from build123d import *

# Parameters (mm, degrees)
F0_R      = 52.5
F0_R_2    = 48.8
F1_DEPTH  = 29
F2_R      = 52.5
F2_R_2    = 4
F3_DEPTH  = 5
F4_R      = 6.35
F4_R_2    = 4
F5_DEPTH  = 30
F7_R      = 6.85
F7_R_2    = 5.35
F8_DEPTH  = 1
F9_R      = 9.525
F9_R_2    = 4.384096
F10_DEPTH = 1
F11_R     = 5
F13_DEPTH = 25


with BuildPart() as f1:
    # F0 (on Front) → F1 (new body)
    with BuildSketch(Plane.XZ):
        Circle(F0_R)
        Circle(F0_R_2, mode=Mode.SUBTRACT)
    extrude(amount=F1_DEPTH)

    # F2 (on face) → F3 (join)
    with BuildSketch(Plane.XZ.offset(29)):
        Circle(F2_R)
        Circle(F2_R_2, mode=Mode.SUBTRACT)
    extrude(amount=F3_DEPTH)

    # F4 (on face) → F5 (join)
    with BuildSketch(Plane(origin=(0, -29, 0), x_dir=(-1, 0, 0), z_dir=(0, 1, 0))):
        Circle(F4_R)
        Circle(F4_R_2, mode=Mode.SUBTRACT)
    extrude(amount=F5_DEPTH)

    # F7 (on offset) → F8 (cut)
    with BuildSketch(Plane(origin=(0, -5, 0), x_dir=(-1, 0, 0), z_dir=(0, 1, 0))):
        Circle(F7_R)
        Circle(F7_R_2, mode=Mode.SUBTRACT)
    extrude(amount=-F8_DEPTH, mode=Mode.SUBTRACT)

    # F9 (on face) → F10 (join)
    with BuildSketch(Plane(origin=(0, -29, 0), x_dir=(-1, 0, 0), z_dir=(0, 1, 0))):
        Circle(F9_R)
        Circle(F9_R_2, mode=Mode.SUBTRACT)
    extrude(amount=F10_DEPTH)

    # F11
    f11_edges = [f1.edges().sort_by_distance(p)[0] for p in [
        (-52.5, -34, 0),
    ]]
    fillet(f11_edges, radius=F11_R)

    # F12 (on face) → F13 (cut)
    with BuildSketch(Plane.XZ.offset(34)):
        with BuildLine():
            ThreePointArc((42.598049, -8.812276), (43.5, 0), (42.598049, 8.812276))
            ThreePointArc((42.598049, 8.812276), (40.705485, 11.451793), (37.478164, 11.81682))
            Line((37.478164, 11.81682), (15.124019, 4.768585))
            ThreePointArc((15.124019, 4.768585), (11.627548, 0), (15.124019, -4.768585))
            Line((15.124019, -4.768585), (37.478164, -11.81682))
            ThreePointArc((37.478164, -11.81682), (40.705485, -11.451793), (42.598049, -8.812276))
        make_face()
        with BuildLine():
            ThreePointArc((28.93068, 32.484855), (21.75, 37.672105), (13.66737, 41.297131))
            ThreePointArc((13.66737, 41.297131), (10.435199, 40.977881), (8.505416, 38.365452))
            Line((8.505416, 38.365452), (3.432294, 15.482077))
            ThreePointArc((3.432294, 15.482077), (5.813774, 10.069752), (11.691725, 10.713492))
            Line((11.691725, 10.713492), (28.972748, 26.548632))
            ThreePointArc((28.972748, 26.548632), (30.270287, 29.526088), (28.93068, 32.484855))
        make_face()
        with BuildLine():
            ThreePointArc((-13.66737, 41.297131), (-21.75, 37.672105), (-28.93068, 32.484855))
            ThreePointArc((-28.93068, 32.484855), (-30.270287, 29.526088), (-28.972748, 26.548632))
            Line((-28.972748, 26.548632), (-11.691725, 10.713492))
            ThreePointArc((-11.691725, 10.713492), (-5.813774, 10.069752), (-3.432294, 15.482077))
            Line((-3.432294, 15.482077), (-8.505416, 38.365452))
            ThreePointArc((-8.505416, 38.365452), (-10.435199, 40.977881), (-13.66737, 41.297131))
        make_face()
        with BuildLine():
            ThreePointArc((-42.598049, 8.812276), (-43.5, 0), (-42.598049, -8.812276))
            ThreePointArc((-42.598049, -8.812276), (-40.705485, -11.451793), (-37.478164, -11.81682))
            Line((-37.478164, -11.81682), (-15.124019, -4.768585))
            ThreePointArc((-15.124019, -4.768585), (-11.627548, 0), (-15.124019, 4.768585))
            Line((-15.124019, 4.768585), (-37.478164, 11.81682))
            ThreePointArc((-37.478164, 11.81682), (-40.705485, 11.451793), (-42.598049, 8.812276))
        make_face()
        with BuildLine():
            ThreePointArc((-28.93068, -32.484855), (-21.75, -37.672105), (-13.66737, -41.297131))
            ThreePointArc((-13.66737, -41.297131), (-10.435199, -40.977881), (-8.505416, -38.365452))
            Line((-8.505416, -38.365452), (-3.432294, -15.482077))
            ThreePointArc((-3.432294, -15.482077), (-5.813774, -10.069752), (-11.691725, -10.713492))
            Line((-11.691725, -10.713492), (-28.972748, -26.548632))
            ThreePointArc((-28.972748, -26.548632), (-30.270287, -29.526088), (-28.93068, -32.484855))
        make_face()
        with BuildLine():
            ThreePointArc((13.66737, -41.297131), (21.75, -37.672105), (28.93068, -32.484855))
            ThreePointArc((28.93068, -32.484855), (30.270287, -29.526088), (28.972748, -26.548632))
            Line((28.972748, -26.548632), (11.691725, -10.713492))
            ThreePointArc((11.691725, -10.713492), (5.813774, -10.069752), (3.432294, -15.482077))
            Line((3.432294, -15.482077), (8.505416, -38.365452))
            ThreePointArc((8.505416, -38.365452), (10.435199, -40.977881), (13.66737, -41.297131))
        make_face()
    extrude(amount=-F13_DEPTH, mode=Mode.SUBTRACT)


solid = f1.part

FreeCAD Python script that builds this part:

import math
import FreeCAD as App
import Part
import Sketcher

V = App.Vector
Q = App.Units.Quantity


def edges_at(feature, points):
    """Names of the edges that pass closest to the given points."""
    edges = feature.Shape.Edges
    near = lambda p: min(range(len(edges)), key=lambda i: edges[i].distToShape(Part.Vertex(*p))[0])
    return sorted({f"Edge{near(p) + 1}" for p in points})

doc = App.newDocument("Part")
body = doc.addObject("PartDesign::Body", "Body")

sketch1 = body.newObject("Sketcher::SketchObject", "Sketch")
sketch1.AttachmentSupport = (doc.getObject("XZ_Plane"), [""])
sketch1.MapMode = "FlatFace"
sketch1.addGeometry([
    Part.Circle(V(0, 0, 0), V(0, 0, 1), 52),
    Part.Circle(V(0, 0, 0), V(0, 0, 1), 49),
], False)
sketch1.addConstraint([
    Sketcher.Constraint("Coincident", 0, 3, -1, 1),
    Sketcher.Constraint("Coincident", 1, 3, -1, 1),
    Sketcher.Constraint("Diameter", 0, 105.0),
    Sketcher.Constraint("Diameter", 1, 97.6),
])
pad1 = body.newObject("PartDesign::Pad", "Pad")
pad1.Profile = sketch1
pad1.Length = 29

sketch2 = body.newObject("Sketcher::SketchObject", "Sketch001")
sketch2.AttachmentSupport = (doc.getObject("XZ_Plane"), [""])
sketch2.MapMode = "FlatFace"
sketch2.AttachmentOffset = App.Placement(V(0, 0, 29), App.Rotation())
sketch2.addGeometry([
    Part.Circle(V(0, 0, 0), V(0, 0, 1), 52.5),
    Part.Circle(V(0, 0, 0), V(0, 0, 1), 4),
], False)
sketch2.addConstraint([
    Sketcher.Constraint("Coincident", 0, 3, -1, 1),
    Sketcher.Constraint("Coincident", 1, 3, -1, 1),
    Sketcher.Constraint("Diameter", 0, 105.0),
    Sketcher.Constraint("Diameter", 1, 8.0),
])
pad2 = body.newObject("PartDesign::Pad", "Pad001")
pad2.Profile = sketch2
pad2.Length = 5

sketch3 = body.newObject("Sketcher::SketchObject", "Sketch002")
sketch3.AttachmentSupport = (doc.getObject("XZ_Plane"), [""])
sketch3.MapMode = "FlatFace"
sketch3.AttachmentOffset = App.Placement(V(0, 0, 29), App.Rotation())
sketch3.addGeometry([
    Part.Circle(V(0, 0, 0), V(0, 0, 1), 6.3),
    Part.Circle(V(0, 0, 0), V(0, 0, 1), 4),
], False)
sketch3.addConstraint([
    Sketcher.Constraint("Coincident", 0, 3, -1, 1),
    Sketcher.Constraint("Coincident", 1, 3, -1, 1),
    Sketcher.Constraint("Diameter", 1, 8.0),
    Sketcher.Constraint("Diameter", 0, 12.7),
])
pad3 = body.newObject("PartDesign::Pad", "Pad002")
pad3.Profile = sketch3
pad3.Length = 30
pad3.Reversed = True

sketch4 = body.newObject("Sketcher::SketchObject", "Sketch003")
sketch4.AttachmentSupport = (doc.getObject("XZ_Plane"), [""])
sketch4.MapMode = "FlatFace"
sketch4.AttachmentOffset = App.Placement(V(0, 0, 5), App.Rotation())
sketch4.addGeometry([
    Part.Circle(V(0, 0, 0), V(0, 0, 1), 7),
    Part.Circle(V(0, 0, 0), V(0, 0, 1), 5),
], False)
sketch4.addConstraint([
    Sketcher.Constraint("Coincident", 0, 3, -1, 1),
    Sketcher.Constraint("Coincident", 1, 3, -1, 1),
    Sketcher.Constraint("Diameter", 0, 13.7),
    Sketcher.Constraint("Diameter", 1, 10.7),
])
pocket1 = body.newObject("PartDesign::Pocket", "Pocket")
pocket1.Profile = sketch4
pocket1.Length = 1
pocket1.Reversed = True

sketch5 = body.newObject("Sketcher::SketchObject", "Sketch004")
sketch5.AttachmentSupport = (doc.getObject("XZ_Plane"), [""])
sketch5.MapMode = "FlatFace"
sketch5.AttachmentOffset = App.Placement(V(0, 0, 29), App.Rotation())
sketch5.addGeometry([
    Part.Circle(V(0, 0, 0), V(0, 0, 1), 9.5),
    Part.Circle(V(0, 0, 0), V(0, 0, 1), 4.4),
], False)
sketch5.addConstraint([
    Sketcher.Constraint("Coincident", 0, 3, -1, 1),
    Sketcher.Constraint("Coincident", 1, 3, -1, 1),
    Sketcher.Constraint("Diameter", 0, 19.05),
    Sketcher.Constraint("Diameter", 1, 8.768192),
])
pad4 = body.newObject("PartDesign::Pad", "Pad003")
pad4.Profile = sketch5
pad4.Length = 1
pad4.Reversed = True
doc.recompute()

fillet = body.newObject("PartDesign::Fillet", "Fillet")
fillet.Base = (pad4, edges_at(pad4, [(-52.5, -34, 0)]))
fillet.Radius = 5

sketch6 = body.newObject("Sketcher::SketchObject", "Sketch005")
sketch6.AttachmentSupport = (doc.getObject("XZ_Plane"), [""])
sketch6.MapMode = "FlatFace"
sketch6.AttachmentOffset = App.Placement(V(0, 0, 34), App.Rotation())
sketch6.addGeometry([
    Part.ArcOfCircle(Part.Circle(V(0.000007, 0, 0), V(0, 0, 1), 43.499993), math.radians(-11.687935), math.radians(11.687935)),
    Part.ArcOfCircle(Part.Circle(V(38.680986, 8.00195, 0), V(0, 0, 1), 4.000001), math.radians(11.68795), math.radians(107.499974)),
    Part.LineSegment(V(37.478164, 11.81682, 0), V(15.124019, 4.768585, 0)),
    Part.ArcOfCircle(Part.Circle(V(16.627548, 0, 0), V(0, 0, 1), 5), math.radians(107.500003), math.radians(252.499997)),
    Part.LineSegment(V(15.124019, -4.768585, 0), V(37.478164, -11.81682, 0)),
    Part.ArcOfCircle(Part.Circle(V(38.680986, -8.00195, 0), V(0, 0, 1), 4.000001), math.radians(-107.499974), math.radians(-11.68795)),
    Part.ArcOfCircle(Part.Circle(V(-0.000012, -0.000022, 0), V(0, 0, 1), 43.500025), math.radians(48.312074), math.radians(71.687927)),
    Part.ArcOfCircle(Part.Circle(V(12.410601, 37.499692, 0), V(0, 0, 1), 4.000001), math.radians(71.687946), math.radians(167.499986)),
    Part.LineSegment(V(8.505416, 38.365452, 0), V(3.432294, 15.482077, 0)),
    Part.ArcOfCircle(Part.Circle(V(8.313774, 14.399879, 0), V(0, 0, 1), 5), math.radians(167.500002), math.radians(312.499995)),
    Part.LineSegment(V(11.691725, 10.713492, 0), V(28.972748, 26.548632, 0)),
    Part.ArcOfCircle(Part.Circle(V(26.270387, 29.497742, 0), V(0, 0, 1), 4.000001), math.radians(-47.500002), math.radians(48.31206)),
    Part.ArcOfCircle(Part.Circle(V(0.000012, -0.000022, 0), V(0, 0, 1), 43.500025), math.radians(108.312073), math.radians(131.687926)),
    Part.ArcOfCircle(Part.Circle(V(-26.270387, 29.497742, 0), V(0, 0, 1), 4.000001), math.radians(131.68794), math.radians(227.500002)),
    Part.LineSegment(V(-28.972748, 26.548632, 0), V(-11.691725, 10.713492, 0)),
    Part.ArcOfCircle(Part.Circle(V(-8.313774, 14.399879, 0), V(0, 0, 1), 5), math.radians(-132.499995), math.radians(12.499998)),
    Part.LineSegment(V(-3.432294, 15.482077, 0), V(-8.505416, 38.365452, 0)),
    Part.ArcOfCircle(Part.Circle(V(-12.410601, 37.499692, 0), V(0, 0, 1), 4.000001), math.radians(12.500014), math.radians(108.312054)),
    Part.ArcOfCircle(Part.Circle(V(-0.000007, 0, 0), V(0, 0, 1), 43.499993), math.radians(168.312065), math.radians(191.687935)),
    Part.ArcOfCircle(Part.Circle(V(-38.680986, -8.00195, 0), V(0, 0, 1), 4.000001), math.radians(-168.31205), math.radians(-72.500026)),
    Part.LineSegment(V(-37.478164, -11.81682, 0), V(-15.124019, -4.768585, 0)),
    Part.ArcOfCircle(Part.Circle(V(-16.627548, 0, 0), V(0, 0, 1), 5), math.radians(-72.499997), math.radians(72.499997)),
    Part.LineSegment(V(-15.124019, 4.768585, 0), V(-37.478164, 11.81682, 0)),
    Part.ArcOfCircle(Part.Circle(V(-38.680986, 8.00195, 0), V(0, 0, 1), 4.000001), math.radians(72.500026), math.radians(168.31205)),
    Part.ArcOfCircle(Part.Circle(V(0.000012, 0.000022, 0), V(0, 0, 1), 43.500025), math.radians(-131.687926), math.radians(-108.312073)),
    Part.ArcOfCircle(Part.Circle(V(-12.410601, -37.499692, 0), V(0, 0, 1), 4.000001), math.radians(-108.312054), math.radians(-12.500014)),
    Part.LineSegment(V(-8.505416, -38.365452, 0), V(-3.432294, -15.482077, 0)),
    Part.ArcOfCircle(Part.Circle(V(-8.313774, -14.399879, 0), V(0, 0, 1), 5), math.radians(-12.499998), math.radians(132.499995)),
    Part.LineSegment(V(-11.691725, -10.713492, 0), V(-28.972748, -26.548632, 0)),
    Part.ArcOfCircle(Part.Circle(V(-26.270387, -29.497742, 0), V(0, 0, 1), 4.000001), math.radians(132.499998), math.radians(228.31206)),
    Part.ArcOfCircle(Part.Circle(V(-0.000012, 0.000022, 0), V(0, 0, 1), 43.500025), math.radians(-71.687927), math.radians(-48.312074)),
    Part.ArcOfCircle(Part.Circle(V(26.270387, -29.497742, 0), V(0, 0, 1), 4.000001), math.radians(-48.31206), math.radians(47.500002)),
    Part.LineSegment(V(28.972748, -26.548632, 0), V(11.691725, -10.713492, 0)),
    Part.ArcOfCircle(Part.Circle(V(8.313774, -14.399879, 0), V(0, 0, 1), 5), math.radians(47.500005), math.radians(192.499998)),
    Part.LineSegment(V(3.432294, -15.482077, 0), V(8.505416, -38.365452, 0)),
    Part.ArcOfCircle(Part.Circle(V(12.410601, -37.499692, 0), V(0, 0, 1), 4.000001), math.radians(-167.499986), math.radians(-71.687946)),
], False)
sketch6.addConstraint([
    Sketcher.Constraint("Tangent", 0, 2, 1, 1),
    Sketcher.Constraint("Tangent", 1, 2, 2, 1),
    Sketcher.Constraint("Tangent", 2, 2, 3, 1),
    Sketcher.Constraint("Tangent", 3, 2, 4, 1),
    Sketcher.Constraint("Tangent", 4, 2, 5, 1),
    Sketcher.Constraint("Tangent", 5, 2, 0, 1),
    Sketcher.Constraint("Tangent", 6, 2, 7, 1),
    Sketcher.Constraint("Tangent", 7, 2, 8, 1),
    Sketcher.Constraint("Tangent", 8, 2, 9, 1),
    Sketcher.Constraint("Tangent", 9, 2, 10, 1),
    Sketcher.Constraint("Tangent", 10, 2, 11, 1),
    Sketcher.Constraint("Tangent", 11, 2, 6, 1),
    Sketcher.Constraint("Tangent", 12, 2, 13, 1),
    Sketcher.Constraint("Tangent", 13, 2, 14, 1),
    Sketcher.Constraint("Tangent", 14, 2, 15, 1),
    Sketcher.Constraint("Tangent", 15, 2, 16, 1),
    Sketcher.Constraint("Tangent", 16, 2, 17, 1),
    Sketcher.Constraint("Tangent", 17, 2, 12, 1),
    Sketcher.Constraint("Tangent", 18, 2, 19, 1),
    Sketcher.Constraint("Tangent", 19, 2, 20, 1),
    Sketcher.Constraint("Tangent", 20, 2, 21, 1),
    Sketcher.Constraint("Tangent", 21, 2, 22, 1),
    Sketcher.Constraint("Tangent", 22, 2, 23, 1),
    Sketcher.Constraint("Tangent", 23, 2, 18, 1),
    Sketcher.Constraint("Tangent", 24, 2, 25, 1),
    Sketcher.Constraint("Tangent", 25, 2, 26, 1),
    Sketcher.Constraint("Tangent", 26, 2, 27, 1),
    Sketcher.Constraint("Tangent", 27, 2, 28, 1),
    Sketcher.Constraint("Tangent", 28, 2, 29, 1),
    Sketcher.Constraint("Tangent", 29, 2, 24, 1),
    Sketcher.Constraint("Tangent", 30, 2, 31, 1),
    Sketcher.Constraint("Tangent", 31, 2, 32, 1),
    Sketcher.Constraint("Tangent", 32, 2, 33, 1),
    Sketcher.Constraint("Tangent", 33, 2, 34, 1),
    Sketcher.Constraint("Tangent", 34, 2, 35, 1),
    Sketcher.Constraint("Tangent", 35, 2, 30, 1),
    Sketcher.Constraint("Coincident", 0, 3, -1, 1),
    Sketcher.Constraint("Coincident", 18, 3, -1, 1),
    Sketcher.Constraint("Equal", 1, 5),
    Sketcher.Constraint("Equal", 5, 7),
    Sketcher.Constraint("Equal", 3, 9),
    Sketcher.Constraint("Equal", 7, 11),
    Sketcher.Constraint("Equal", 6, 12),
    Sketcher.Constraint("Equal", 11, 13),
    Sketcher.Constraint("Equal", 9, 15),
    Sketcher.Constraint("Equal", 13, 17),
    Sketcher.Constraint("Equal", 0, 18),
    Sketcher.Constraint("Equal", 17, 19),
    Sketcher.Constraint("Equal", 15, 21),
    Sketcher.Constraint("Equal", 19, 23),
    Sketcher.Constraint("Equal", 12, 24),
    Sketcher.Constraint("Equal", 23, 25),
    Sketcher.Constraint("Equal", 21, 27),
    Sketcher.Constraint("Equal", 25, 29),
    Sketcher.Constraint("Equal", 24, 30),
    Sketcher.Constraint("Equal", 29, 31),
    Sketcher.Constraint("Equal", 27, 33),
    Sketcher.Constraint("Equal", 31, 35),
    Sketcher.Constraint("Symmetric", 3, 3, 21, 3, -1, 1),
    Sketcher.Constraint("Symmetric", 6, 3, 24, 3, -1, 1),
    Sketcher.Constraint("Symmetric", 9, 3, 27, 3, -1, 1),
    Sketcher.Constraint("Symmetric", 12, 3, 30, 3, -1, 1),
    Sketcher.Constraint("Symmetric", 15, 3, 33, 3, -1, 1),
    Sketcher.Constraint("Symmetric", 6, 3, 12, 3, -2),
    Sketcher.Constraint("Symmetric", 9, 3, 15, 3, -2),
    Sketcher.Constraint("Symmetric", 4, 2, 19, 2, -2),
    Sketcher.Constraint("Parallel", 2, 20),
    Sketcher.Constraint("Parallel", 4, 22),
    Sketcher.Constraint("Parallel", 8, 26),
    Sketcher.Constraint("Parallel", 10, 28),
    Sketcher.Constraint("Parallel", 14, 32),
    Sketcher.Constraint("Parallel", 16, 34),
    Sketcher.Constraint("Horizontal", 11, 3, 13, 3),
    Sketcher.Constraint("Horizontal", 7, 3, 17, 3),
    Sketcher.Constraint("Equal", 4, 8),
    Sketcher.Constraint("Equal", 8, 10),
    Sketcher.Constraint("Radius", 1, 4.000001),
    Sketcher.Constraint("Radius", 3, 5.0),
    Sketcher.Constraint("Angle", 2, Q("-162.5 deg")),
    Sketcher.Constraint("Angle", 8, Q("-102.5 deg")),
    Sketcher.Constraint("Angle", 10, Q("42.5 deg")),
    Sketcher.Constraint("Radius", 0, 43.499993),
    Sketcher.Constraint("Radius", 6, 43.500025),
    Sketcher.Constraint("DistanceX", 6, 3, 5, 3, 38.680998),
    Sketcher.Constraint("DistanceX", -1, 1, 7, 3, 12.410601),
    Sketcher.Constraint("DistanceY", -1, 1, 9, 3, 14.399879),
])
pocket2 = body.newObject("PartDesign::Pocket", "Pocket001")
pocket2.Profile = sketch6
pocket2.Length = 25

doc.recompute()
